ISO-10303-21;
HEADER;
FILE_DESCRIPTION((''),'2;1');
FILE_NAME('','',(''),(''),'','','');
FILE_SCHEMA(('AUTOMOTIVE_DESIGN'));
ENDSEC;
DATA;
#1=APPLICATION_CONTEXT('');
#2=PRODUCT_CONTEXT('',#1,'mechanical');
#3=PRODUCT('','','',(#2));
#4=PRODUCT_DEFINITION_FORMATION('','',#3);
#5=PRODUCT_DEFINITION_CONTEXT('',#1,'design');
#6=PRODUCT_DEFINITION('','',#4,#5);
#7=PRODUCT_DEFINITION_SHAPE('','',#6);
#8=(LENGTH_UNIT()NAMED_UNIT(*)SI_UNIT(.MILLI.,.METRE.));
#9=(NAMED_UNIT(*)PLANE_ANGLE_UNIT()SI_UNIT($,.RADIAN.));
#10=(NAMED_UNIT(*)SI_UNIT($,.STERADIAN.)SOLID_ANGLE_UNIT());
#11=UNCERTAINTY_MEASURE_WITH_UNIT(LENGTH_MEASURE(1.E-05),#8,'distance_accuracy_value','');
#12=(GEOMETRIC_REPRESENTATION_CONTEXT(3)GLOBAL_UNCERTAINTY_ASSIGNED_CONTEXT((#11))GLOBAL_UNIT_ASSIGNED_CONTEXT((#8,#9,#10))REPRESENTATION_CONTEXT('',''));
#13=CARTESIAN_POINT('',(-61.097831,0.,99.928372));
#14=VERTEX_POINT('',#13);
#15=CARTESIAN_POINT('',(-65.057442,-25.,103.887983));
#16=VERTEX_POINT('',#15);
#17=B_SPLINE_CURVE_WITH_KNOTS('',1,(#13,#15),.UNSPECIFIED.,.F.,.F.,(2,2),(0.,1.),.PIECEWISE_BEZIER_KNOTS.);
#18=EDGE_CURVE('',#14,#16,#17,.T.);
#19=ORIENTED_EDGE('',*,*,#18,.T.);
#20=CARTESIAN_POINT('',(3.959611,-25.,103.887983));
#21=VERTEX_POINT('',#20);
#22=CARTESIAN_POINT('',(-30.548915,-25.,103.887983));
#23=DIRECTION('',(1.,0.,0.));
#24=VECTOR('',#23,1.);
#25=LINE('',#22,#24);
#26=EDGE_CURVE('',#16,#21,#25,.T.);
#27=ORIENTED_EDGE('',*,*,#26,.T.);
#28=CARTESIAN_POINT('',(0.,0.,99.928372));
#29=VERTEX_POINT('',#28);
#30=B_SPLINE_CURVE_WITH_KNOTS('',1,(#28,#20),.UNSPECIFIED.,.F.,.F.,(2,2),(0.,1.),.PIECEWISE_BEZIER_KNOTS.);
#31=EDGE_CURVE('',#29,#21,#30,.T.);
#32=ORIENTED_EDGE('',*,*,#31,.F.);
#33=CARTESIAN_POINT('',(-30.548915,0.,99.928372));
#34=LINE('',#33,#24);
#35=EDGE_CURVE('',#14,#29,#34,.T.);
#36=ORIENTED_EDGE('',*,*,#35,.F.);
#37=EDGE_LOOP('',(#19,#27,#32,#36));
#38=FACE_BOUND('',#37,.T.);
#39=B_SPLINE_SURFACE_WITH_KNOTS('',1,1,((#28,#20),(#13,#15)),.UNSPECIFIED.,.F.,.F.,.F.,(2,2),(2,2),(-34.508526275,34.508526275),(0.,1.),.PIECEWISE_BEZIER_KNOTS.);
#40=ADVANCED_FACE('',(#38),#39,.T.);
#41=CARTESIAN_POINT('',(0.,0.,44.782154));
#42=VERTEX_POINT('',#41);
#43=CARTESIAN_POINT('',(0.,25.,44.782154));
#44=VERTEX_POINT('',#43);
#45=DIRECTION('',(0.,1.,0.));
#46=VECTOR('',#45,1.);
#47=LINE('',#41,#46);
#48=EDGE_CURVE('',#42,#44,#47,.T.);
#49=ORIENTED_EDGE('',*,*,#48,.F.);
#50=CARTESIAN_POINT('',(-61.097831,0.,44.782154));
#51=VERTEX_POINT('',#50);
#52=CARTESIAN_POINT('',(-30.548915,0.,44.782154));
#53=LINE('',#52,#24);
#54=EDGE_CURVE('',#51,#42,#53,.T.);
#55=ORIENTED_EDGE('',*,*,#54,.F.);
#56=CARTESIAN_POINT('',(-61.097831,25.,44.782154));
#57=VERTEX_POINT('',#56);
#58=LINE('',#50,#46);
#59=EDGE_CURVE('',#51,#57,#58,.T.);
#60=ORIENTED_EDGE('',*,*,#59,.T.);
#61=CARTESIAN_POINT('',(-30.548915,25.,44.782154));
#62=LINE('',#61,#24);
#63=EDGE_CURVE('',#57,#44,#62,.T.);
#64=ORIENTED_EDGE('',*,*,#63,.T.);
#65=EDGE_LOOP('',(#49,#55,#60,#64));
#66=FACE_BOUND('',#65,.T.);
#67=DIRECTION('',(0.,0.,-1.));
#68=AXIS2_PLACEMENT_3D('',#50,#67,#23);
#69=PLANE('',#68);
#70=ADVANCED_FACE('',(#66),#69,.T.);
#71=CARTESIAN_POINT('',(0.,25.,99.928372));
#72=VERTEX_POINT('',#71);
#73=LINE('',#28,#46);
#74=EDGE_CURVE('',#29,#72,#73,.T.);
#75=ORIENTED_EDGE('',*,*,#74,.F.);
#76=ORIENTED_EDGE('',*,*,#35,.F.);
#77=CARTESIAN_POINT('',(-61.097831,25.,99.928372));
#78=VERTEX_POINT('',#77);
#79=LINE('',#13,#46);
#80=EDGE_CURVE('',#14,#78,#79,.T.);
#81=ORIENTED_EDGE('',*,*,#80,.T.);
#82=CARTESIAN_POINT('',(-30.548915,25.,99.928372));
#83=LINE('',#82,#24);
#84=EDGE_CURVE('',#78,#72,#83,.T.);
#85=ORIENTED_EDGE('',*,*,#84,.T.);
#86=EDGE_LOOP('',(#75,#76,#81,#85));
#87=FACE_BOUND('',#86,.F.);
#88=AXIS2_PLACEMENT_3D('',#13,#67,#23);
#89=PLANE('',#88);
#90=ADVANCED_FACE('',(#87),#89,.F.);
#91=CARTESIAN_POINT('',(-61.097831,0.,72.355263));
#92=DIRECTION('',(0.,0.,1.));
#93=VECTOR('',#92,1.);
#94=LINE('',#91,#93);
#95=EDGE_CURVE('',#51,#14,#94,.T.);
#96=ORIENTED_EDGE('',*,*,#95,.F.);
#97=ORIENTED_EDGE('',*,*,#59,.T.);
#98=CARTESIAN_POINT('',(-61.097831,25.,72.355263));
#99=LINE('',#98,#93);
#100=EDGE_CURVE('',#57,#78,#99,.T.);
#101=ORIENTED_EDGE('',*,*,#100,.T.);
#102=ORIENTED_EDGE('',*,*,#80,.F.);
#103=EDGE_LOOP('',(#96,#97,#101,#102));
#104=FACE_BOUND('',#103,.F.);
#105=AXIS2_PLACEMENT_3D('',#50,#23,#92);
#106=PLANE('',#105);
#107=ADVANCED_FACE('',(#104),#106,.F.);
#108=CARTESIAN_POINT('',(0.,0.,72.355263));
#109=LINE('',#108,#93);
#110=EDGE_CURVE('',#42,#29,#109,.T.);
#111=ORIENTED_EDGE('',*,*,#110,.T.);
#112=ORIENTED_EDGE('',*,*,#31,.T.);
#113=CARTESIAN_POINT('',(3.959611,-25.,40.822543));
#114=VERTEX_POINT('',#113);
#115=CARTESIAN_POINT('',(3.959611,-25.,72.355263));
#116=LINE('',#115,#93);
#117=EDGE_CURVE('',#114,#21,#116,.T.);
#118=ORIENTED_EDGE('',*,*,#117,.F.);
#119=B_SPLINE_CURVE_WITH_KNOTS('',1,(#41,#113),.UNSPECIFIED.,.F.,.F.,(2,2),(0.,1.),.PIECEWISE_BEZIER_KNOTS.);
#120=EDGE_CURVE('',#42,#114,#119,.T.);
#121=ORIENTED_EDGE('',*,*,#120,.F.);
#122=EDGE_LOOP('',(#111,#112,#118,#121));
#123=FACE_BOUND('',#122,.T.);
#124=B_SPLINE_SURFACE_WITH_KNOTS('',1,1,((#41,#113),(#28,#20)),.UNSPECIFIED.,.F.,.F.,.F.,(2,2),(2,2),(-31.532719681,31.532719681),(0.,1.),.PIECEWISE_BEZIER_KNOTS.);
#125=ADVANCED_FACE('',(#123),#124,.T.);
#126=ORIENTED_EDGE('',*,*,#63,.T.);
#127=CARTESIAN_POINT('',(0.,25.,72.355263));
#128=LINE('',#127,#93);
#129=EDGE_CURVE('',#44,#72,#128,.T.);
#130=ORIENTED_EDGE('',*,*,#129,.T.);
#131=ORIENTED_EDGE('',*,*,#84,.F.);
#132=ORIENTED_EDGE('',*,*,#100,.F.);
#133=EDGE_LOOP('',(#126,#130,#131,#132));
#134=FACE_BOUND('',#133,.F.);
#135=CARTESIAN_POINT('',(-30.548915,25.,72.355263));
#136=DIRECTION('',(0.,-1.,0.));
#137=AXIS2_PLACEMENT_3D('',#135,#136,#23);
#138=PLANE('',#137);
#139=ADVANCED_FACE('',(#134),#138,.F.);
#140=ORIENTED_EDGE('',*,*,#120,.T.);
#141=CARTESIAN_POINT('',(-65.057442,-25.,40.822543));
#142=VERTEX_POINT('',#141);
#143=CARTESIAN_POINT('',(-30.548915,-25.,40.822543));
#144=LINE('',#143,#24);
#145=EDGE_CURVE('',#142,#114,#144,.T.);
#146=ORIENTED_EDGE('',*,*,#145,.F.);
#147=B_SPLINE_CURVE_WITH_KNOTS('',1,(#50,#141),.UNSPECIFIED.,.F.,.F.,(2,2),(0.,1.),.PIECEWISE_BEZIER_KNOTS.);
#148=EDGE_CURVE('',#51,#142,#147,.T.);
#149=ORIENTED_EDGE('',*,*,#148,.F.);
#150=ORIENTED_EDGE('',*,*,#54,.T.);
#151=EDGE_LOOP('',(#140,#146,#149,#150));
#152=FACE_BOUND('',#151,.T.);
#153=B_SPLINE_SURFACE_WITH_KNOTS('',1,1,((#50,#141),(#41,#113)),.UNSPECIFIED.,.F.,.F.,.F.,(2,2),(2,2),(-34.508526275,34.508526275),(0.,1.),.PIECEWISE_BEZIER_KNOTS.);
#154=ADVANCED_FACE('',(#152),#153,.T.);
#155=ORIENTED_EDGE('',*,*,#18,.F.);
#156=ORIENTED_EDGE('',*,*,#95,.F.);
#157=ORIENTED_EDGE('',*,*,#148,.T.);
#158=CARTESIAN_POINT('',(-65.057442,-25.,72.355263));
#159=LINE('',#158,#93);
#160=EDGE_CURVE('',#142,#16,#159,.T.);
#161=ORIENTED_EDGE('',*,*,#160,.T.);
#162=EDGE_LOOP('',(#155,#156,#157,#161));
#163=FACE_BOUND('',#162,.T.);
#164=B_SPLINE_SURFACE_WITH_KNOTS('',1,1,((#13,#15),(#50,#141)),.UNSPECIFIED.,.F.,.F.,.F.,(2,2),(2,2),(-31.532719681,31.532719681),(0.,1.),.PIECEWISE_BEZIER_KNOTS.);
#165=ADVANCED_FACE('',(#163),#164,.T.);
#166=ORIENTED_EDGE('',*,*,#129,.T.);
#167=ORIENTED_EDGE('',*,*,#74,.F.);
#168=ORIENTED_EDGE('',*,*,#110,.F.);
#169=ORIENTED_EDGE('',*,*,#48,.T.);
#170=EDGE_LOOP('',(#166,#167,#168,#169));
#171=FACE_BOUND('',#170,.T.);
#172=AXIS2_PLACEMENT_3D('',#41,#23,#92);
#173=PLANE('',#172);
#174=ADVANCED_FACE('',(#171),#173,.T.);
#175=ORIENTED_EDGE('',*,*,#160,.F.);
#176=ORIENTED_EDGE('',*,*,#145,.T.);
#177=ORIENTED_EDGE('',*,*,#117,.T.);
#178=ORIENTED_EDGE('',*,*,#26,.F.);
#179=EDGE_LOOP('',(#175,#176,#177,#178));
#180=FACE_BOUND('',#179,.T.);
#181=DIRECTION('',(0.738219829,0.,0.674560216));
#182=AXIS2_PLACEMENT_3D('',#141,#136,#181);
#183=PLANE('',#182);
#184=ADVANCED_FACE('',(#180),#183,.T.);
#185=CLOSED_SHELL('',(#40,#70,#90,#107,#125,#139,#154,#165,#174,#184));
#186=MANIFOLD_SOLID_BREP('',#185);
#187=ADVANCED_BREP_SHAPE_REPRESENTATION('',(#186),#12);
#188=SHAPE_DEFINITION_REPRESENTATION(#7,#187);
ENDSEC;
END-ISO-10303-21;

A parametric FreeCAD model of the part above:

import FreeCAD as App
import Part
import Sketcher
from FreeCAD import Vector

doc = App.newDocument("Part")
body = doc.addObject("PartDesign::Body", "Body")

# Sketch on XZ plane
sketch1 = doc.addObject("Sketcher::SketchObject", "Sketch")
body.addObject(sketch1)
sketch1.AttachmentSupport = (doc.XZ_Plane, [""])
sketch1.MapMode = "FlatFace"
sketch1.addGeometry([
    Part.LineSegment(Vector(-61.097831, 99.928372, 0), Vector(-61.097831, 44.782154, 0)),
    Part.LineSegment(Vector(-61.097831, 44.782154, 0), Vector(0, 44.782154, 0)),
    Part.LineSegment(Vector(0, 44.782154, 0), Vector(0, 99.928372, 0)),
    Part.LineSegment(Vector(0, 99.928372, 0), Vector(-61.097831, 99.928372, 0)),
], False)
sketch1.addConstraint([
    Sketcher.Constraint("Coincident", 0, 2, 1, 1),
    Sketcher.Constraint("Coincident", 1, 2, 2, 1),
    Sketcher.Constraint("Coincident", 2, 2, 3, 1),
    Sketcher.Constraint("Coincident", 3, 2, 0, 1),
    Sketcher.Constraint("Vertical", 0),
    Sketcher.Constraint("Horizontal", 1),
    Sketcher.Constraint("Vertical", 2),
    Sketcher.Constraint("Horizontal", 3),
    Sketcher.Constraint("PointOnObject", 1, 2, -2),
    Sketcher.Constraint("DistanceX", 1, 1, 1, 2, 61.097831),
    Sketcher.Constraint("DistanceY", 0, 2, 0, 1, 55.146217),
    Sketcher.Constraint("DistanceY", -1, 1, 2, 2, 99.928372),
])
pad1 = doc.addObject("PartDesign::Pad", "Pad")
body.addObject(pad1)
pad1.Profile = sketch1
pad1.Length = 25
pad1.TaperAngle = 9
pad2 = doc.addObject("PartDesign::Pad", "Pad001")
body.addObject(pad2)
pad2.Profile = sketch1
pad2.Length = 25
pad2.Reversed = True

doc.recompute()
